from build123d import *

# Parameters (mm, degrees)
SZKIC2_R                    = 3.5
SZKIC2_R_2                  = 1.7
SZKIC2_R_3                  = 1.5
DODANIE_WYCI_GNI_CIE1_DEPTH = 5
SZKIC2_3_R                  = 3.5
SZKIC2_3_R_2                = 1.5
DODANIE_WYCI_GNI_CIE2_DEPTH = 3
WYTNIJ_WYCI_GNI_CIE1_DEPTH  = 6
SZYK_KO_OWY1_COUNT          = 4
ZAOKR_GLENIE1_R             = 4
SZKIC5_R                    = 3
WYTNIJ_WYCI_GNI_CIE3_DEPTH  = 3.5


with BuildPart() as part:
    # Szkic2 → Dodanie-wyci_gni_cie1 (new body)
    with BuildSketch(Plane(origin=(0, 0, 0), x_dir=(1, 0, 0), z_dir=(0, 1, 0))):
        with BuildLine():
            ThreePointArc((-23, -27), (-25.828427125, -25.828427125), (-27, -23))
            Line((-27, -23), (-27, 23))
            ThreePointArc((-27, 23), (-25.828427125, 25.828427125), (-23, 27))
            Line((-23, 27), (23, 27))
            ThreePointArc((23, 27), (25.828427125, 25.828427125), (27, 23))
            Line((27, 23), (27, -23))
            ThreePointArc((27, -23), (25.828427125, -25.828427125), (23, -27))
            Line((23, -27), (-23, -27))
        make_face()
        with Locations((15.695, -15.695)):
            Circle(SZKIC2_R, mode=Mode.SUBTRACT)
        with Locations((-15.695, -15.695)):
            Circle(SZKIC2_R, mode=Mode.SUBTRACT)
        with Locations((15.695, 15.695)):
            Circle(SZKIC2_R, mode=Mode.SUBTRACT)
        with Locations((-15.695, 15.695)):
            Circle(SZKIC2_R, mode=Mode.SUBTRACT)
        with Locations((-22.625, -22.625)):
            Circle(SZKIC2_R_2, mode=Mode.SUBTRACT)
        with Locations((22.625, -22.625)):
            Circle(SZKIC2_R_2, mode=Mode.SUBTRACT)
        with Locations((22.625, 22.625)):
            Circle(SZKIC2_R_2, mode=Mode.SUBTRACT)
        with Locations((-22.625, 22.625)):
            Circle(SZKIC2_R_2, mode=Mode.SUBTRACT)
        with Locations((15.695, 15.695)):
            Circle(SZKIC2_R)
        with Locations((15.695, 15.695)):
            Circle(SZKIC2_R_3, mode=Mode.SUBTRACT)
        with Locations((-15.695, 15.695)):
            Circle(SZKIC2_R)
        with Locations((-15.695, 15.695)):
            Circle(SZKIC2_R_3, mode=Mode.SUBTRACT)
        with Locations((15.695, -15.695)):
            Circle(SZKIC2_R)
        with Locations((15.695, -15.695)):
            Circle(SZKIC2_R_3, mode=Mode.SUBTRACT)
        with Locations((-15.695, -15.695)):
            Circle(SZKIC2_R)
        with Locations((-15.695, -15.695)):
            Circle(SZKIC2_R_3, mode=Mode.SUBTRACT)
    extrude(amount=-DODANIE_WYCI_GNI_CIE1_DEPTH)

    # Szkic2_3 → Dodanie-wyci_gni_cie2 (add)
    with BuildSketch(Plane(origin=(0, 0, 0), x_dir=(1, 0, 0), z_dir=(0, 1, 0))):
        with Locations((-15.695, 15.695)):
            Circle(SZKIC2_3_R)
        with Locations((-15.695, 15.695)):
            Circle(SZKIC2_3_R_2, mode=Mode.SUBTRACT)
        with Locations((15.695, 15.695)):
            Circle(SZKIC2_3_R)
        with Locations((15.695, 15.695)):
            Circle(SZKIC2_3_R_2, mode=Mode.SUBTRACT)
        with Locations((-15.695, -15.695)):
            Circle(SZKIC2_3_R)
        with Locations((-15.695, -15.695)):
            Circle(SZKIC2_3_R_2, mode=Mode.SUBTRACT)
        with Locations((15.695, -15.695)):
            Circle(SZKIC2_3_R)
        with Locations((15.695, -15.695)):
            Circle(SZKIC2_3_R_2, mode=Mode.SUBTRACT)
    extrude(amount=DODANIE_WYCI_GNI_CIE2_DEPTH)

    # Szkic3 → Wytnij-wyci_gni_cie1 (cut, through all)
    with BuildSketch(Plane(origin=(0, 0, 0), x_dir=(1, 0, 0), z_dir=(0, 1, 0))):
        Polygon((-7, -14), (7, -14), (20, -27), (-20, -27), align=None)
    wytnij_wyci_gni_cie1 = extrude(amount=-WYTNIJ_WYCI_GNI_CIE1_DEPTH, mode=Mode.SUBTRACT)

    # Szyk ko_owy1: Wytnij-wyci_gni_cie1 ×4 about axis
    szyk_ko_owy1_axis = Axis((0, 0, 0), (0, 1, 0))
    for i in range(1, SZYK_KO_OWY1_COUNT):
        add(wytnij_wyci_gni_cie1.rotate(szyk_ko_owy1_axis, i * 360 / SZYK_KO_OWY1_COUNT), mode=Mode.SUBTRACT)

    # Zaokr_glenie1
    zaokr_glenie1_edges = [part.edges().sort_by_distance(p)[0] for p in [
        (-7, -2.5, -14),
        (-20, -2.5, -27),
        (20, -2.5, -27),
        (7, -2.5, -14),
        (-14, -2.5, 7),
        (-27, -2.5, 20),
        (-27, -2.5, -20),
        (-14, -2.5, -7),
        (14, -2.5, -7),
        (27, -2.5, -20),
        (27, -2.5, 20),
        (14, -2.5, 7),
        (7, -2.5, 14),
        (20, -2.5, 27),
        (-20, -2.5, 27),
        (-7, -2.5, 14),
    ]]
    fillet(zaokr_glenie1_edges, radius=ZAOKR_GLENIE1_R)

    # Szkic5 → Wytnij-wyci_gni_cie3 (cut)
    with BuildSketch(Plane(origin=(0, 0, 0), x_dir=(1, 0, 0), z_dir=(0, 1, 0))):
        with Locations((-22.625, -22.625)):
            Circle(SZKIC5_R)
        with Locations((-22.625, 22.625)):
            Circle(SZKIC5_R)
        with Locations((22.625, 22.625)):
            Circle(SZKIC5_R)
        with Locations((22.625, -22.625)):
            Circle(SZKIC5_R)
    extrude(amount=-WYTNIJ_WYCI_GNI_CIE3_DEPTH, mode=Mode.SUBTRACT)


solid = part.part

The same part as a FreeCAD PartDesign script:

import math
import FreeCAD as App
import Part
import Sketcher
from FreeCAD import Vector


def edges_at(feature, points):
    """Names of the edges that pass closest to the given points."""
    edges = feature.Shape.Edges
    near = lambda p: min(range(len(edges)), key=lambda i: edges[i].distToShape(Part.Vertex(*p))[0])
    return sorted({f"Edge{near(p) + 1}" for p in points})


def add_polygon(sketch, points):
    """Adds a closed chain of lines whose ends are joined by coincident constraints."""
    first, n = sketch.GeometryCount, len(points)
    for a, b in zip(points, points[1:] + points[:1]):
        sketch.addGeometry(Part.LineSegment(App.Vector(*a, 0), App.Vector(*b, 0)), False)
    for i in range(n):
        sketch.addConstraint(Sketcher.Constraint("Coincident", first + i, 2, first + (i + 1) % n, 1))

doc = App.newDocument("Part")
body = doc.addObject("PartDesign::Body", "Body")

sketch1 = body.newObject("Sketcher::SketchObject", "Sketch")
sketch1.AttachmentSupport = (doc.getObject("XZ_Plane"), [""])
sketch1.MapMode = "FlatFace"
sketch1.addGeometry(Part.ArcOfCircle(Part.Circle(Vector(-23, 23, 0), Vector(0, 0, 1), 4), math.radians(90), math.radians(180)), False)
sketch1.addGeometry(Part.LineSegment(Vector(-23, 27, 0), Vector(23, 27, 0)), False)
sketch1.addGeometry(Part.ArcOfCircle(Part.Circle(Vector(23, 23, 0), Vector(0, 0, 1), 4), math.radians(0), math.radians(90)), False)
sketch1.addGeometry(Part.LineSegment(Vector(27, 23, 0), Vector(27, -23, 0)), False)
sketch1.addGeometry(Part.ArcOfCircle(Part.Circle(Vector(23, -23, 0), Vector(0, 0, 1), 4), math.radians(-90), math.radians(0)), False)
sketch1.addGeometry(Part.LineSegment(Vector(23, -27, 0), Vector(-23, -27, 0)), False)
sketch1.addGeometry(Part.ArcOfCircle(Part.Circle(Vector(-23, -23, 0), Vector(0, 0, 1), 4), math.radians(180), math.radians(270)), False)
sketch1.addGeometry(Part.LineSegment(Vector(-27, -23, 0), Vector(-27, 23, 0)), False)
sketch1.addGeometry(Part.Circle(Vector(22.625, 22.625, 0), Vector(0, 0, 1), 1.7), False)
sketch1.addGeometry(Part.Circle(Vector(15.695, 15.695, 0), Vector(0, 0, 1), 1.5), False)
sketch1.addGeometry(Part.Circle(Vector(-22.625, 22.625, 0), Vector(0, 0, 1), 1.7), False)
sketch1.addGeometry(Part.Circle(Vector(-15.695, 15.695, 0), Vector(0, 0, 1), 1.5), False)
sketch1.addGeometry(Part.Circle(Vector(15.695, -15.695, 0), Vector(0, 0, 1), 1.5), False)
sketch1.addGeometry(Part.Circle(Vector(22.625, -22.625, 0), Vector(0, 0, 1), 1.7), False)
sketch1.addGeometry(Part.Circle(Vector(-15.695, -15.695, 0), Vector(0, 0, 1), 1.5), False)
sketch1.addGeometry(Part.Circle(Vector(-22.625, -22.625, 0), Vector(0, 0, 1), 1.7), False)
sketch1.addConstraint(Sketcher.Constraint("Tangent", 0, 1, 1, 1))
sketch1.addConstraint(Sketcher.Constraint("Tangent", 1, 2, 2, 2))
sketch1.addConstraint(Sketcher.Constraint("Tangent", 2, 1, 3, 1))
sketch1.addConstraint(Sketcher.Constraint("Tangent", 3, 2, 4, 2))
sketch1.addConstraint(Sketcher.Constraint("Tangent", 4, 1, 5, 1))
sketch1.addConstraint(Sketcher.Constraint("Tangent", 5, 2, 6, 2))
sketch1.addConstraint(Sketcher.Constraint("Tangent", 6, 1, 7, 1))
sketch1.addConstraint(Sketcher.Constraint("Tangent", 7, 2, 0, 2))
sketch1.addConstraint(Sketcher.Constraint("Horizontal", 1))
sketch1.addConstraint(Sketcher.Constraint("Vertical", 3))
sketch1.addConstraint(Sketcher.Constraint("Horizontal", 5))
sketch1.addConstraint(Sketcher.Constraint("Vertical", 7))
sketch1.addConstraint(Sketcher.Constraint("Equal", 0, 2))
sketch1.addConstraint(Sketcher.Constraint("Equal", 2, 4))
sketch1.addConstraint(Sketcher.Constraint("Equal", 4, 6))
sketch1.addConstraint(Sketcher.Constraint("Equal", 8, 10))
sketch1.addConstraint(Sketcher.Constraint("Equal", 9, 11))
sketch1.addConstraint(Sketcher.Constraint("Equal", 11, 12))
sketch1.addConstraint(Sketcher.Constraint("Equal", 10, 13))
sketch1.addConstraint(Sketcher.Constraint("Equal", 12, 14))
sketch1.addConstraint(Sketcher.Constraint("Equal", 13, 15))
sketch1.addConstraint(Sketcher.Constraint("Symmetric", 0, 3, 4, 3, -1, 1))
sketch1.addConstraint(Sketcher.Constraint("Symmetric", 11, 3, 12, 3, -1, 1))
sketch1.addConstraint(Sketcher.Constraint("Symmetric", 10, 3, 13, 3, -1, 1))
sketch1.addConstraint(Sketcher.Constraint("Symmetric", 9, 3, 14, 3, -1, 1))
sketch1.addConstraint(Sketcher.Constraint("Symmetric", 8, 3, 15, 3, -1, 1))
sketch1.addConstraint(Sketcher.Constraint("Symmetric", 8, 3, 10, 3, -2))
sketch1.addConstraint(Sketcher.Constraint("Symmetric", 9, 3, 11, 3, -2))
sketch1.addConstraint(Sketcher.Constraint("Equal", 5, 3))
sketch1.addConstraint(Sketcher.Constraint("Diameter", 9, 3.0))
sketch1.addConstraint(Sketcher.Constraint("Radius", 0, 4.0))
sketch1.addConstraint(Sketcher.Constraint("Diameter", 8, 3.4))
sketch1.addConstraint(Sketcher.Constraint("DistanceX", 1, 1, 1, 2, 46.0))
sketch1.addConstraint(Sketcher.Constraint("DistanceX", 9, 3, 8, 3, 6.93))
sketch1.addConstraint(Sketcher.Constraint("DistanceY", 9, 3, 8, 3, 6.93))
sketch1.addConstraint(Sketcher.Constraint("DistanceX", 10, 3, 9, 3, 38.32))
sketch1.addConstraint(Sketcher.Constraint("DistanceY", 12, 3, 9, 3, 31.39))
pad1 = body.newObject("PartDesign::Pad", "Pad")
pad1.Profile = sketch1
pad1.Length = 5

sketch2 = body.newObject("Sketcher::SketchObject", "Sketch001")
sketch2.AttachmentSupport = (doc.getObject("XZ_Plane"), [""])
sketch2.MapMode = "FlatFace"
sketch2.addGeometry(Part.Circle(Vector(-15.695, -15.695, 0), Vector(0, 0, 1), 3.5), False)
sketch2.addGeometry(Part.Circle(Vector(-15.695, -15.695, 0), Vector(0, 0, 1), 1.5), False)
sketch2.addGeometry(Part.Circle(Vector(15.695, -15.695, 0), Vector(0, 0, 1), 3.5), False)
sketch2.addGeometry(Part.Circle(Vector(15.695, -15.695, 0), Vector(0, 0, 1), 1.5), False)
sketch2.addGeometry(Part.Circle(Vector(-15.695, 15.695, 0), Vector(0, 0, 1), 3.5), False)
sketch2.addGeometry(Part.Circle(Vector(-15.695, 15.695, 0), Vector(0, 0, 1), 1.5), False)
sketch2.addGeometry(Part.Circle(Vector(15.695, 15.695, 0), Vector(0, 0, 1), 3.5), False)
sketch2.addGeometry(Part.Circle(Vector(15.695, 15.695, 0), Vector(0, 0, 1), 1.5), False)
sketch2.addConstraint(Sketcher.Constraint("Coincident", 1, 3, 0, 3))
sketch2.addConstraint(Sketcher.Constraint("Coincident", 3, 3, 2, 3))
sketch2.addConstraint(Sketcher.Constraint("Coincident", 5, 3, 4, 3))
sketch2.addConstraint(Sketcher.Constraint("Coincident", 7, 3, 6, 3))
sketch2.addConstraint(Sketcher.Constraint("Equal", 0, 2))
sketch2.addConstraint(Sketcher.Constraint("Equal", 1, 3))
sketch2.addConstraint(Sketcher.Constraint("Equal", 2, 4))
sketch2.addConstraint(Sketcher.Constraint("Equal", 3, 5))
sketch2.addConstraint(Sketcher.Constraint("Equal", 4, 6))
sketch2.addConstraint(Sketcher.Constraint("Equal", 5, 7))
sketch2.addConstraint(Sketcher.Constraint("Symmetric", 2, 3, 4, 3, -1, 1))
sketch2.addConstraint(Sketcher.Constraint("Symmetric", 0, 3, 6, 3, -1, 1))
sketch2.addConstraint(Sketcher.Constraint("Symmetric", 0, 3, 2, 3, -2))
sketch2.addConstraint(Sketcher.Constraint("Diameter", 0, 7.0))
sketch2.addConstraint(Sketcher.Constraint("Diameter", 1, 3.0))
sketch2.addConstraint(Sketcher.Constraint("DistanceX", 0, 3, 2, 3, 31.39))
sketch2.addConstraint(Sketcher.Constraint("DistanceY", 0, 3, 4, 3, 31.39))
pad2 = body.newObject("PartDesign::Pad", "Pad001")
pad2.Profile = sketch2
pad2.Length = 3
pad2.Reversed = True

sketch3 = body.newObject("Sketcher::SketchObject", "Sketch002")
sketch3.AttachmentSupport = (doc.getObject("XZ_Plane"), [""])
sketch3.MapMode = "FlatFace"
add_polygon(sketch3, [(7, 14), (-7, 14), (-20, 27), (20, 27)])
sketch3.addConstraint(Sketcher.Constraint("Horizontal", 0))
sketch3.addConstraint(Sketcher.Constraint("Horizontal", 2))
sketch3.addConstraint(Sketcher.Constraint("Perpendicular", 1, 3))
sketch3.addConstraint(Sketcher.Constraint("Equal", 1, 3))
sketch3.addConstraint(Sketcher.Constraint("DistanceX", 0, 2, 0, 1, 14.0))
sketch3.addConstraint(Sketcher.Constraint("DistanceX", 2, 1, 2, 2, 40.0))
sketch3.addConstraint(Sketcher.Constraint("DistanceX", 0, 2, -1, 1, 7.0))
sketch3.addConstraint(Sketcher.Constraint("DistanceY", -1, 1, 0, 2, 14.0))
pocket1 = body.newObject("PartDesign::Pocket", "Pocket")
pocket1.Profile = sketch3
pocket1.Type = "ThroughAll"
pocket1.Reversed = True
doc.recompute()

polarpattern = body.newObject("PartDesign::PolarPattern", "PolarPattern")
polarpattern.Originals = [pocket1]
polarpattern.Axis = (doc.getObject("Y_Axis"), [""])
polarpattern.Angle = 360
polarpattern.Occurrences = 4
body.Tip = polarpattern
doc.recompute()

fillet = body.newObject("PartDesign::Fillet", "Fillet")
fillet.Base = (polarpattern, edges_at(polarpattern, [
    (-7, -2.5, -14),
    (-20, -2.5, -27),
    (20, -2.5, -27),
    (7, -2.5, -14),
    (-14, -2.5, 7),
    (-27, -2.5, 20),
    (-27, -2.5, -20),
    (-14, -2.5, -7),
    (14, -2.5, -7),
    (27, -2.5, -20),
    (27, -2.5, 20),
    (14, -2.5, 7),
    (7, -2.5, 14),
    (20, -2.5, 27),
    (-20, -2.5, 27),
    (-7, -2.5, 14),
]))
fillet.Radius = 4

sketch4 = body.newObject("Sketcher::SketchObject", "Sketch003")
sketch4.AttachmentSupport = (doc.getObject("XZ_Plane"), [""])
sketch4.MapMode = "FlatFace"
sketch4.addGeometry(Part.Circle(Vector(-22.625, 22.625, 0), Vector(0, 0, 1), 3), False)
sketch4.addGeometry(Part.Circle(Vector(-22.625, -22.625, 0), Vector(0, 0, 1), 3), False)
sketch4.addGeometry(Part.Circle(Vector(22.625, -22.625, 0), Vector(0, 0, 1), 3), False)
sketch4.addGeometry(Part.Circle(Vector(22.625, 22.625, 0), Vector(0, 0, 1), 3), False)
sketch4.addConstraint(Sketcher.Constraint("Equal", 0, 1))
sketch4.addConstraint(Sketcher.Constraint("Equal", 1, 2))
sketch4.addConstraint(Sketcher.Constraint("Equal", 2, 3))
sketch4.addConstraint(Sketcher.Constraint("Symmetric", 0, 3, 2, 3, -1, 1))
sketch4.addConstraint(Sketcher.Constraint("Symmetric", 1, 3, 3, 3, -1, 1))
sketch4.addConstraint(Sketcher.Constraint("Symmetric", 1, 3, 2, 3, -2))
sketch4.addConstraint(Sketcher.Constraint("Diameter", 0, 6.0))
sketch4.addConstraint(Sketcher.Constraint("DistanceY", 1, 3, 0, 3, 45.25))
sketch4.addConstraint(Sketcher.Constraint("DistanceX", 1, 3, 2, 3, 45.25))
pocket2 = body.newObject("PartDesign::Pocket", "Pocket001")
pocket2.Profile = sketch4
pocket2.Length = 3.5
pocket2.Reversed = True

doc.recompute()
